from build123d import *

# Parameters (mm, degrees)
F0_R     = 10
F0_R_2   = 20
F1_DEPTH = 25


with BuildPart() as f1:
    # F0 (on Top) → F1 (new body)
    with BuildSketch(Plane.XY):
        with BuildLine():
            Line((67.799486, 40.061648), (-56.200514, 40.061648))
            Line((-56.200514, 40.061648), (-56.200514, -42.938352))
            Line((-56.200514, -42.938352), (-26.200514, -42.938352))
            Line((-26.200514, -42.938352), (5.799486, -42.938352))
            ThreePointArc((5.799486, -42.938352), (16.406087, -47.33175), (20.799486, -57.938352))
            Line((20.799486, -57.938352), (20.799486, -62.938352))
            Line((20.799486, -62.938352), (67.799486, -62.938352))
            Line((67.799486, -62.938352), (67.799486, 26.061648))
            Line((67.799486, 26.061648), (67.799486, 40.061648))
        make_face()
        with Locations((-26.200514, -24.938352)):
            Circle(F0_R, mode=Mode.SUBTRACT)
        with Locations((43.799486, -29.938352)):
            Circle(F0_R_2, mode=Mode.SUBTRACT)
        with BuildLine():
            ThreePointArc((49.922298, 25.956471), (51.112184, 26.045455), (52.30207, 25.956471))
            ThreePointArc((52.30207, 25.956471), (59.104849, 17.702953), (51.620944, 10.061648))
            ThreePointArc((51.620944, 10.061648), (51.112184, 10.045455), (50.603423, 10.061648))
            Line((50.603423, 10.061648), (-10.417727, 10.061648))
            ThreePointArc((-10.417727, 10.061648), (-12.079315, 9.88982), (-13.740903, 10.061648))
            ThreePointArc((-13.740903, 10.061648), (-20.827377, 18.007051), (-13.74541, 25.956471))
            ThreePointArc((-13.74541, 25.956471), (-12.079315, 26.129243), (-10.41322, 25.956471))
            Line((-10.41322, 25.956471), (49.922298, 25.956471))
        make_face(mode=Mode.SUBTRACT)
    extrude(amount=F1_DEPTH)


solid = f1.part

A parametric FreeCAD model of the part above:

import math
import FreeCAD as App
import Part
import Sketcher

V = App.Vector

doc = App.newDocument("Part")
body = doc.addObject("PartDesign::Body", "Body")

sketch1 = doc.addObject("Sketcher::SketchObject", "Sketch")
body.addObject(sketch1)
sketch1.AttachmentSupport = (doc.XY_Plane, [""])
sketch1.MapMode = "FlatFace"
sketch1.addGeometry(Part.LineSegment(V(67.799486, 40.061648, 0), V(-56.200514, 40.061648, 0)), False)
sketch1.addGeometry(Part.LineSegment(V(-56.200514, 40.061648, 0), V(-56.200514, -42.938352, 0)), False)
sketch1.addGeometry(Part.LineSegment(V(-56.200514, -42.938352, 0), V(5.799486, -42.938352, 0)), False)
sketch1.addGeometry(Part.ArcOfCircle(Part.Circle(V(5.799485, -57.938353, 0), V(0, 0, 1), 15.000001), math.radians(0.000003), math.radians(89.999997)), False)
sketch1.addGeometry(Part.LineSegment(V(20.799486, -57.938352, 0), V(20.799486, -62.938352, 0)), False)
sketch1.addGeometry(Part.LineSegment(V(20.799486, -62.938352, 0), V(67.799486, -62.938352, 0)), False)
sketch1.addGeometry(Part.LineSegment(V(67.799486, -62.938352, 0), V(67.799486, 40.061648, 0)), False)
sketch1.addGeometry(Part.Circle(V(-26.200514, -24.938352, 0), V(0, 0, 1), 10), False)
sketch1.addGeometry(Part.Circle(V(43.799486, -29.938352, 0), V(0, 0, 1), 20), False)
sketch1.addGeometry(Part.LineSegment(V(-10.41322, 25.956471, 0), V(49.922298, 25.956471, 0)), False)
sketch1.addGeometry(Part.ArcOfCircle(Part.Circle(V(51.112184, 18.045439, 0), V(0, 0, 1), 8.000016), math.radians(81.446349), math.radians(98.553651)), False)
sketch1.addGeometry(Part.ArcOfCircle(Part.Circle(V(51.112184, 18.045455, 0), V(0, 0, 1), 8), math.radians(-86.353812), math.radians(81.446329)), False)
sketch1.addGeometry(Part.ArcOfCircle(Part.Circle(V(51.112184, 18.045809, 0), V(0, 0, 1), 8.000354), math.radians(-93.646028), math.radians(-86.353972)), False)
sketch1.addGeometry(Part.LineSegment(V(50.603423, 10.061648, 0), V(-10.417727, 10.061648, 0)), False)
sketch1.addGeometry(Part.ArcOfCircle(Part.Circle(V(-12.079315, 18.009566, 0), V(0, 0, 1), 8.119746), math.radians(-101.80816), math.radians(-78.19184)), False)
sketch1.addGeometry(Part.ArcOfCircle(Part.Circle(V(-12.827377, 18.009319, 0), V(0, 0, 1), 8), math.radians(96.589444), math.radians(263.443049)), False)
sketch1.addGeometry(Part.ArcOfCircle(Part.Circle(V(-12.079315, 18.009517, 0), V(0, 0, 1), 8.119726), math.radians(78.159318), math.radians(101.840682)), False)
sketch1.addConstraint(Sketcher.Constraint("Coincident", 0, 2, 1, 1))
sketch1.addConstraint(Sketcher.Constraint("Coincident", 1, 2, 2, 1))
sketch1.addConstraint(Sketcher.Constraint("Coincident", 2, 2, 3, 2))
sketch1.addConstraint(Sketcher.Constraint("Coincident", 3, 1, 4, 1))
sketch1.addConstraint(Sketcher.Constraint("Coincident", 4, 2, 5, 1))
sketch1.addConstraint(Sketcher.Constraint("Coincident", 5, 2, 6, 1))
sketch1.addConstraint(Sketcher.Constraint("Coincident", 6, 2, 0, 1))
sketch1.addConstraint(Sketcher.Constraint("Coincident", 9, 2, 10, 2))
sketch1.addConstraint(Sketcher.Constraint("Coincident", 10, 1, 11, 2))
sketch1.addConstraint(Sketcher.Constraint("Coincident", 11, 1, 12, 2))
sketch1.addConstraint(Sketcher.Constraint("Coincident", 12, 1, 13, 1))
sketch1.addConstraint(Sketcher.Constraint("Coincident", 13, 2, 14, 2))
sketch1.addConstraint(Sketcher.Constraint("Coincident", 14, 1, 15, 2))
sketch1.addConstraint(Sketcher.Constraint("Coincident", 15, 1, 16, 2))
sketch1.addConstraint(Sketcher.Constraint("Coincident", 16, 1, 9, 1))
sketch1.addConstraint(Sketcher.Constraint("Horizontal", 0))
sketch1.addConstraint(Sketcher.Constraint("Vertical", 1))
sketch1.addConstraint(Sketcher.Constraint("Horizontal", 2))
sketch1.addConstraint(Sketcher.Constraint("Vertical", 4))
sketch1.addConstraint(Sketcher.Constraint("Horizontal", 5))
sketch1.addConstraint(Sketcher.Constraint("Vertical", 6))
sketch1.addConstraint(Sketcher.Constraint("Horizontal", 9))
sketch1.addConstraint(Sketcher.Constraint("Horizontal", 13))
sketch1.addConstraint(Sketcher.Constraint("Diameter", 7, 20.0))
sketch1.addConstraint(Sketcher.Constraint("Diameter", 8, 40.0))
sketch1.addConstraint(Sketcher.Constraint("Radius", 3, 15.000001))
sketch1.addConstraint(Sketcher.Constraint("Radius", 11, 8.0))
sketch1.addConstraint(Sketcher.Constraint("Radius", 15, 8.0))
sketch1.addConstraint(Sketcher.Constraint("DistanceX", 0, 2, 0, 1, 124.0))
sketch1.addConstraint(Sketcher.Constraint("DistanceX", 2, 1, 2, 2, 62.0))
sketch1.addConstraint(Sketcher.Constraint("DistanceX", 5, 1, 5, 2, 47.0))
sketch1.addConstraint(Sketcher.Constraint("DistanceY", 1, 2, 1, 1, 83.0))
sketch1.addConstraint(Sketcher.Constraint("DistanceY", 4, 2, 4, 1, 5.0))
sketch1.addConstraint(Sketcher.Constraint("DistanceY", 6, 1, 6, 2, 103.0))
sketch1.addConstraint(Sketcher.Constraint("DistanceX", 7, 3, 3, 3, 31.999999))
sketch1.addConstraint(Sketcher.Constraint("DistanceY", 3, 3, 7, 3, 33.000001))
sketch1.addConstraint(Sketcher.Constraint("DistanceX", 3, 3, 8, 3, 38.000001))
sketch1.addConstraint(Sketcher.Constraint("DistanceY", 3, 3, 8, 3, 28.000001))
sketch1.addConstraint(Sketcher.Constraint("DistanceY", 7, 3, 13, 2, 35.0))
sketch1.addConstraint(Sketcher.Constraint("DistanceY", 7, 3, 14, 1, 35.0))
sketch1.addConstraint(Sketcher.Constraint("Radius", 10, 8.000016))
sketch1.addConstraint(Sketcher.Constraint("Radius", 12, 8.000354))
sketch1.addConstraint(Sketcher.Constraint("Radius", 14, 8.119746))
sketch1.addConstraint(Sketcher.Constraint("Radius", 16, 8.119726))
sketch1.addConstraint(Sketcher.Constraint("DistanceX", 13, 2, 13, 1, 61.02115))
sketch1.addConstraint(Sketcher.Constraint("DistanceX", 3, 3, 10, 3, 45.312699))
sketch1.addConstraint(Sketcher.Constraint("DistanceX", 3, 3, 11, 3, 45.312698))
sketch1.addConstraint(Sketcher.Constraint("DistanceX", 3, 3, 12, 3, 45.312698))
sketch1.addConstraint(Sketcher.Constraint("DistanceX", 7, 3, 14, 3, 14.121199))
sketch1.addConstraint(Sketcher.Constraint("DistanceX", 7, 3, 16, 3, 14.121199))
sketch1.addConstraint(Sketcher.Constraint("DistanceX", 9, 1, 9, 2, 60.335518))
sketch1.addConstraint(Sketcher.Constraint("DistanceY", 7, 3, -1, 1, 24.938352))
sketch1.addConstraint(Sketcher.Constraint("DistanceY", -1, 1, 10, 3, 18.045439))
sketch1.addConstraint(Sketcher.Constraint("DistanceY", -1, 1, 15, 3, 18.009319))
sketch1.addConstraint(Sketcher.Constraint("DistanceY", -1, 1, 9, 2, 25.956471))
sketch1.addConstraint(Sketcher.Constraint("DistanceX", -1, 1, 10, 1, 52.30207))
sketch1.addConstraint(Sketcher.Constraint("DistanceY", -1, 1, 10, 1, 25.956471))
sketch1.addConstraint(Sketcher.Constraint("DistanceX", 10, 3, 11, 1, 0.50876))
pad1 = doc.addObject("PartDesign::Pad", "Pad")
body.addObject(pad1)
pad1.Profile = sketch1
pad1.Length = 25

doc.recompute()
